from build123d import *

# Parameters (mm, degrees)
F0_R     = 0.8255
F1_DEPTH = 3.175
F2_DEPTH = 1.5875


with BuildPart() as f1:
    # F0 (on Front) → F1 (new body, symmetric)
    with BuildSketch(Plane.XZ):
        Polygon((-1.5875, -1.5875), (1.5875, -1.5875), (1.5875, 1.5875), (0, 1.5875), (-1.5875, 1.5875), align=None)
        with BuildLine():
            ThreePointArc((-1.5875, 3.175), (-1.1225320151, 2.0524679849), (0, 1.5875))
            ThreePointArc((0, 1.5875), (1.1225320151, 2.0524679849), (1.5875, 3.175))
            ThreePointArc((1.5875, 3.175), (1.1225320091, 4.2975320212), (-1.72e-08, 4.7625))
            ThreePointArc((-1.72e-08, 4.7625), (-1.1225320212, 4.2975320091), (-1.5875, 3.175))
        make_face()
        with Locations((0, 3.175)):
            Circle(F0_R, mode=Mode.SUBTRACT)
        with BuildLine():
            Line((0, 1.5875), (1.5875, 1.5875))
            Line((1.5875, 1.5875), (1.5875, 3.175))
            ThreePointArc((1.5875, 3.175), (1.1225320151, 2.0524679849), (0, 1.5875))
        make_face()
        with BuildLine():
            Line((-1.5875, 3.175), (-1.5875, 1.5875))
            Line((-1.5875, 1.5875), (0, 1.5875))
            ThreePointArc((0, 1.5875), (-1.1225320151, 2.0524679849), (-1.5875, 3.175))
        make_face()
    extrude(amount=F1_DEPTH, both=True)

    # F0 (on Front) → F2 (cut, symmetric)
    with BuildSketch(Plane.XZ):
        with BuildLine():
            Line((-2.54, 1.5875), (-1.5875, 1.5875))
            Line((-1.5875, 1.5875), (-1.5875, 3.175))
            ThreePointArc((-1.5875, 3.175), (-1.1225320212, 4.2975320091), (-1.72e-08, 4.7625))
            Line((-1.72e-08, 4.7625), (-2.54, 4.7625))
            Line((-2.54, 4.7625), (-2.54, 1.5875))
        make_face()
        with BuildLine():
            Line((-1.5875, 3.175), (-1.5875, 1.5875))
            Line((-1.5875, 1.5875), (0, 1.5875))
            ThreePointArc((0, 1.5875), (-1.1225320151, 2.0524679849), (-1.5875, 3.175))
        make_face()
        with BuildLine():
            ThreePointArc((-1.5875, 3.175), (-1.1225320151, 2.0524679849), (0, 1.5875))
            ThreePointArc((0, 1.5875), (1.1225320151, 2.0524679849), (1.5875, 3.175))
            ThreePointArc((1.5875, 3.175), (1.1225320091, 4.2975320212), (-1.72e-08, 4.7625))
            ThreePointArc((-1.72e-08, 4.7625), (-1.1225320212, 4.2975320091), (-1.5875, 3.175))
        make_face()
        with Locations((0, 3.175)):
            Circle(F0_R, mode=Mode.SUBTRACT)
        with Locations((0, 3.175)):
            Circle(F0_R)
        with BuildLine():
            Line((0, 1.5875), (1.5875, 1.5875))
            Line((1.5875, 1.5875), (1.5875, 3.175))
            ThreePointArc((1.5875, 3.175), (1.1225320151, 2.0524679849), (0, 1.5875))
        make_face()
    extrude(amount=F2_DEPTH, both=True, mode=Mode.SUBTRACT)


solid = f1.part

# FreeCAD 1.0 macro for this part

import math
import FreeCAD as App
import Part
import Sketcher

V = App.Vector
Q = App.Units.Quantity

doc = App.newDocument("Part")
body = doc.addObject("PartDesign::Body", "Body")

sketch1 = body.newObject("Sketcher::SketchObject", "Sketch")
sketch1.AttachmentSupport = (doc.getObject("XZ_Plane"), [""])
sketch1.MapMode = "FlatFace"
sketch1.addGeometry(Part.LineSegment(V(-1.6, -1.6, 0), V(1.6, -1.6, 0)), False)
sketch1.addGeometry(Part.LineSegment(V(1.6, -1.6, 0), V(1.6, 3.2, 0)), False)
sketch1.addGeometry(Part.ArcOfCircle(Part.Circle(V(0, 3.2, 0), V(0, 0, 1), 1.6), math.radians(0), math.radians(90)), False)
sketch1.addGeometry(Part.ArcOfCircle(Part.Circle(V(0, 3.2, 0), V(0, 0, 1), 1.6), math.radians(90), math.radians(180)), False)
sketch1.addGeometry(Part.LineSegment(V(-1.6, 3.2, 0), V(-1.6, -1.6, 0)), False)
sketch1.addGeometry(Part.Circle(V(0, 3.2, 0), V(0, 0, 1), 0.8), False)
sketch1.addConstraint(Sketcher.Constraint("Coincident", 0, 2, 1, 1))
sketch1.addConstraint(Sketcher.Constraint("Tangent", 1, 2, 2, 1))
sketch1.addConstraint(Sketcher.Constraint("Tangent", 2, 2, 3, 1))
sketch1.addConstraint(Sketcher.Constraint("Tangent", 3, 2, 4, 1))
sketch1.addConstraint(Sketcher.Constraint("Coincident", 4, 2, 0, 1))
sketch1.addConstraint(Sketcher.Constraint("Horizontal", 0))
sketch1.addConstraint(Sketcher.Constraint("Vertical", 1))
sketch1.addConstraint(Sketcher.Constraint("Vertical", 4))
sketch1.addConstraint(Sketcher.Constraint("Coincident", 5, 3, 2, 3))
sketch1.addConstraint(Sketcher.Constraint("Equal", 2, 3))
sketch1.addConstraint(Sketcher.Constraint("PointOnObject", 2, 3, -2))
sketch1.addConstraint(Sketcher.Constraint("PointOnObject", 2, 2, -2))
sketch1.addConstraint(Sketcher.Constraint("Diameter", 5, Q("0.065 in")))
sketch1.addConstraint(Sketcher.Constraint("Radius", 2, Q("0.0625 in")))
sketch1.addConstraint(Sketcher.Constraint("DistanceY", 1, 1, 1, 2, Q("0.1875 in")))
sketch1.addConstraint(Sketcher.Constraint("DistanceY", -1, 1, 2, 3, Q("0.125 in")))
pad1 = body.newObject("PartDesign::Pad", "Pad")
pad1.Profile = sketch1
pad1.Length = Q("0.25 in")
pad1.Midplane = True

sketch2 = body.newObject("Sketcher::SketchObject", "Sketch001")
sketch2.AttachmentSupport = (doc.getObject("XZ_Plane"), [""])
sketch2.MapMode = "FlatFace"
sketch2.addGeometry(Part.LineSegment(V(-2.5, 1.6, 0), V(1.6, 1.6, 0)), False)
sketch2.addGeometry(Part.LineSegment(V(1.6, 1.6, 0), V(1.6, 3.2, 0)), False)
sketch2.addGeometry(Part.ArcOfCircle(Part.Circle(V(0, 3.2, 0), V(0, 0, 1), 1.6), math.radians(0), math.radians(90)), False)
sketch2.addGeometry(Part.LineSegment(V(0, 4.8, 0), V(-2.5, 4.8, 0)), False)
sketch2.addGeometry(Part.LineSegment(V(-2.5, 4.8, 0), V(-2.5, 1.6, 0)), False)
sketch2.addConstraint(Sketcher.Constraint("Coincident", 0, 2, 1, 1))
sketch2.addConstraint(Sketcher.Constraint("Tangent", 1, 2, 2, 1))
sketch2.addConstraint(Sketcher.Constraint("Tangent", 2, 2, 3, 1))
sketch2.addConstraint(Sketcher.Constraint("Coincident", 3, 2, 4, 1))
sketch2.addConstraint(Sketcher.Constraint("Coincident", 4, 2, 0, 1))
sketch2.addConstraint(Sketcher.Constraint("Horizontal", 0))
sketch2.addConstraint(Sketcher.Constraint("Vertical", 1))
sketch2.addConstraint(Sketcher.Constraint("Horizontal", 3))
sketch2.addConstraint(Sketcher.Constraint("Vertical", 4))
sketch2.addConstraint(Sketcher.Constraint("PointOnObject", 2, 3, -2))
sketch2.addConstraint(Sketcher.Constraint("DistanceX", 3, 2, 3, 1, Q("0.1 in")))
sketch2.addConstraint(Sketcher.Constraint("Radius", 2, Q("0.0625 in")))
sketch2.addConstraint(Sketcher.Constraint("DistanceY", 1, 1, 1, 2, Q("0.0625 in")))
sketch2.addConstraint(Sketcher.Constraint("DistanceY", -1, 1, 2, 3, Q("0.125 in")))
pocket1 = body.newObject("PartDesign::Pocket", "Pocket")
pocket1.Profile = sketch2
pocket1.Length = Q("0.125 in")
pocket1.Midplane = True

doc.recompute()
